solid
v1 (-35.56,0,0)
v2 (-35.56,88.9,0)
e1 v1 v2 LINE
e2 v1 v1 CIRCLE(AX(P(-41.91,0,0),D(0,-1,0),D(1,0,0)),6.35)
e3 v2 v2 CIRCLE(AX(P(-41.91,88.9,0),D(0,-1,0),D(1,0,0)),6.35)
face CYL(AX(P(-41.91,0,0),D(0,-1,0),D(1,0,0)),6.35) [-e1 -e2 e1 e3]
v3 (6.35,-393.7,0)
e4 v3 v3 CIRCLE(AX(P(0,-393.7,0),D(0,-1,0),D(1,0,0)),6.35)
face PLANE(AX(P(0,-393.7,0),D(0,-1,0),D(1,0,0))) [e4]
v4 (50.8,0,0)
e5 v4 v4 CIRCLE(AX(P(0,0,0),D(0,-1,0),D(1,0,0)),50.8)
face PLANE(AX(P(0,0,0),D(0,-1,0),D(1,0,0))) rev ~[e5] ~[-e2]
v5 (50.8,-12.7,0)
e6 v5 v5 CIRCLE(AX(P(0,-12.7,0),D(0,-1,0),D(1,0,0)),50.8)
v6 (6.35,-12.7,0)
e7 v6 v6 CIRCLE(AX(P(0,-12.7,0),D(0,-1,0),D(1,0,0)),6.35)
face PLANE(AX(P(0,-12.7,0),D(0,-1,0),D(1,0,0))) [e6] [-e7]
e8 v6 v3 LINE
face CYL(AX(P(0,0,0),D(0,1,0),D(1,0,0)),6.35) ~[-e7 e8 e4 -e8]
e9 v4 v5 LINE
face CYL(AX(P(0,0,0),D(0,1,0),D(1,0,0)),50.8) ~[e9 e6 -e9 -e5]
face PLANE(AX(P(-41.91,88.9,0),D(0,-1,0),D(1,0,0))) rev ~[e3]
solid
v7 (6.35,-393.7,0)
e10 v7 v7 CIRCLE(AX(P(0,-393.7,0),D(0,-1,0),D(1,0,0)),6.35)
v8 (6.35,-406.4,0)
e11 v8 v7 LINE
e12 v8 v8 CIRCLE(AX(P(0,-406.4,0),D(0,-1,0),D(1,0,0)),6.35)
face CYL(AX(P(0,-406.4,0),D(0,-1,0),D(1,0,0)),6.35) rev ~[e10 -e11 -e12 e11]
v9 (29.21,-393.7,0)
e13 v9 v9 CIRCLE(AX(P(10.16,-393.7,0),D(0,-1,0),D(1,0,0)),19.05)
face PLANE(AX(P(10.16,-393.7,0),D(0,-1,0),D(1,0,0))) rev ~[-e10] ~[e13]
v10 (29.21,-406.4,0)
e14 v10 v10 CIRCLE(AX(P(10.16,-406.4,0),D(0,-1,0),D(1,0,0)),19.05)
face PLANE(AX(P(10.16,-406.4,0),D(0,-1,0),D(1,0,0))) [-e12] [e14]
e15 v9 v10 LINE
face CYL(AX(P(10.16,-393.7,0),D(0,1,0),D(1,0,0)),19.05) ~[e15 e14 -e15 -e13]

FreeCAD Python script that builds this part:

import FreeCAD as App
import Part
import Sketcher

V = App.Vector
Q = App.Units.Quantity

doc = App.newDocument("Part")
body = doc.addObject("PartDesign::Body", "Body")

# Sketch on XZ plane
sketch1 = body.newObject("Sketcher::SketchObject", "Sketch")
sketch1.AttachmentSupport = (doc.getObject("XZ_Plane"), [""])
sketch1.MapMode = "FlatFace"
sketch1.addGeometry(Part.Circle(V(0, 0, 0), V(0, 0, 1), 6.35), False)
sketch1.addConstraint(Sketcher.Constraint("Coincident", 0, 3, -1, 1))
sketch1.addConstraint(Sketcher.Constraint("Diameter", 0, Q("0.5 in")))
pad1 = body.newObject("PartDesign::Pad", "Pad")
pad1.Profile = sketch1
pad1.Length = Q("15.5 in")

# Sketch on XZ plane
sketch2 = body.newObject("Sketcher::SketchObject", "Sketch001")
sketch2.AttachmentSupport = (doc.getObject("XZ_Plane"), [""])
sketch2.MapMode = "FlatFace"
sketch2.addGeometry(Part.Circle(V(0, 0, 0), V(0, 0, 1), 50.8), False)
sketch2.addGeometry(Part.Circle(V(0, 0, 0), V(0, 0, 1), 6.35), False)
sketch2.addConstraint(Sketcher.Constraint("Coincident", 0, 3, -1, 1))
sketch2.addConstraint(Sketcher.Constraint("Coincident", 1, 3, -1, 1))
sketch2.addConstraint(Sketcher.Constraint("Diameter", 0, Q("4 in")))
sketch2.addConstraint(Sketcher.Constraint("Diameter", 1, Q("0.5 in")))
pad2 = body.newObject("PartDesign::Pad", "Pad001")
pad2.Profile = sketch2
pad2.Length = Q("0.5 in")

# Sketch on XZ plane
sketch3 = body.newObject("Sketcher::SketchObject", "Sketch002")
sketch3.AttachmentSupport = (doc.getObject("XZ_Plane"), [""])
sketch3.MapMode = "FlatFace"
sketch3.addGeometry(Part.Circle(V(-41.91, 0, 0), V(0, 0, 1), 6.35), False)
sketch3.addConstraint(Sketcher.Constraint("PointOnObject", 0, 3, -1))
sketch3.addConstraint(Sketcher.Constraint("Diameter", 0, Q("0.5 in")))
sketch3.addConstraint(Sketcher.Constraint("DistanceX", 0, 3, -1, 1, Q("1.65 in")))
pad3 = body.newObject("PartDesign::Pad", "Pad002")
pad3.Profile = sketch3
pad3.Length = Q("3.5 in")
pad3.Reversed = True
body2 = doc.addObject("PartDesign::Body", "Body001")

# Sketch on XZ plane
sketch4 = body2.newObject("Sketcher::SketchObject", "Sketch003")
sketch4.AttachmentSupport = (doc.getObject("XZ_Plane001"), [""])
sketch4.MapMode = "FlatFace"
sketch4.AttachmentOffset = App.Placement(V(0, 0, 15.5 * 25.4), App.Rotation())
sketch4.addGeometry(Part.Circle(V(10.16, 0, 0), V(0, 0, 1), 19.05), False)
sketch4.addConstraint(Sketcher.Constraint("PointOnObject", 0, 3, -1))
sketch4.addConstraint(Sketcher.Constraint("Diameter", 0, Q("1.5 in")))
sketch4.addConstraint(Sketcher.Constraint("DistanceX", -1, 1, 0, 3, Q("0.4 in")))
pad4 = body2.newObject("PartDesign::Pad", "Pad003")
pad4.Profile = sketch4
pad4.Length = Q("0.5 in")

# Sketch on XZ plane
sketch5 = body2.newObject("Sketcher::SketchObject", "Sketch004")
sketch5.AttachmentSupport = (doc.getObject("XZ_Plane001"), [""])
sketch5.MapMode = "FlatFace"
sketch5.AttachmentOffset = App.Placement(V(0, 0, 16 * 25.4), App.Rotation())
sketch5.addGeometry(Part.Circle(V(0, 0, 0), V(0, 0, 1), 6.35), False)
sketch5.addConstraint(Sketcher.Constraint("Coincident", 0, 3, -1, 1))
sketch5.addConstraint(Sketcher.Constraint("Diameter", 0, Q("0.5 in")))
pocket1 = body2.newObject("PartDesign::Pocket", "Pocket")
pocket1.Profile = sketch5
pocket1.Length = Q("0.5 in")

doc.recompute()
